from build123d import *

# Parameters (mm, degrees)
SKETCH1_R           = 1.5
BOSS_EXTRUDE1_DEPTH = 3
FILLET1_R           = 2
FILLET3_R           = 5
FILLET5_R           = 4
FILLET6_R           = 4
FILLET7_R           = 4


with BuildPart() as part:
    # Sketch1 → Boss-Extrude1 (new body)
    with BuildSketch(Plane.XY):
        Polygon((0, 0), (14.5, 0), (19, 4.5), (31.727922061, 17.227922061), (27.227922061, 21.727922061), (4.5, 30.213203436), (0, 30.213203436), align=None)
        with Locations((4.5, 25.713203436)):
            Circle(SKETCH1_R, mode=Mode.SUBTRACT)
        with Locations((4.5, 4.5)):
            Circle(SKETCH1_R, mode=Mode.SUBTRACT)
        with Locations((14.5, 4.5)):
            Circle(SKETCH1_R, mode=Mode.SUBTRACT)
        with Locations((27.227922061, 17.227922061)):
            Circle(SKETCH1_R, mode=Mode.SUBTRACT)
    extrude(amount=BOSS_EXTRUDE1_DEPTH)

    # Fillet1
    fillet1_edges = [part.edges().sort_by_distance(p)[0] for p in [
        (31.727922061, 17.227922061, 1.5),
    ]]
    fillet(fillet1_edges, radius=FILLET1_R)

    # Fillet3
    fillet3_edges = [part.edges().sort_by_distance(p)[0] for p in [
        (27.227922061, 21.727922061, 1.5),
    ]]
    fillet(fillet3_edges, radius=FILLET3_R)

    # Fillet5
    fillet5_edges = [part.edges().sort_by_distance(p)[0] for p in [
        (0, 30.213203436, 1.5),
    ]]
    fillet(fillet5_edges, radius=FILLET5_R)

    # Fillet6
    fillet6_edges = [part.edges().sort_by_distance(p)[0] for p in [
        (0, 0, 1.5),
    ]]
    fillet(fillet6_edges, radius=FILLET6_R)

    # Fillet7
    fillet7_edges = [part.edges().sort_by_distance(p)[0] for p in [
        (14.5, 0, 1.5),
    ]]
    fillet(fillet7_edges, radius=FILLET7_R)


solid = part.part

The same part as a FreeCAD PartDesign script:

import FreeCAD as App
import Part
import Sketcher
Q = App.Units.Quantity


def edges_at(feature, points):
    """Names of the edges that pass closest to the given points."""
    edges = feature.Shape.Edges
    near = lambda p: min(range(len(edges)), key=lambda i: edges[i].distToShape(Part.Vertex(*p))[0])
    return sorted({f"Edge{near(p) + 1}" for p in points})


def add_polygon(sketch, points):
    """Adds a closed chain of lines whose ends are joined by coincident constraints."""
    first, n = sketch.GeometryCount, len(points)
    for a, b in zip(points, points[1:] + points[:1]):
        sketch.addGeometry(Part.LineSegment(App.Vector(*a, 0), App.Vector(*b, 0)), False)
    for i in range(n):
        sketch.addConstraint(Sketcher.Constraint("Coincident", first + i, 2, first + (i + 1) % n, 1))

doc = App.newDocument("Part")
body = doc.addObject("PartDesign::Body", "Body")

# Sketch on XY plane
sketch1 = body.newObject("Sketcher::SketchObject", "Sketch")
sketch1.AttachmentSupport = (doc.getObject("XY_Plane"), [""])
sketch1.MapMode = "FlatFace"
add_polygon(sketch1, [(0, 0), (14.5, 0), (31.727922, 17.227922), (27.227922, 21.727922), (4.5, 30.213203), (0, 30.213203)])  # lines 0-5
sketch1.addGeometry(Part.Circle(App.Vector(4.5, 4.5, 0), App.Vector(0, 0, 1), 1.5), False)  # 6
sketch1.addGeometry(Part.Circle(App.Vector(14.5, 4.5, 0), App.Vector(0, 0, 1), 1.5), False)  # 7
sketch1.addGeometry(Part.Circle(App.Vector(4.5, 25.713203, 0), App.Vector(0, 0, 1), 1.5), False)  # 8
sketch1.addGeometry(Part.Circle(App.Vector(27.227922, 17.227922, 0), App.Vector(0, 0, 1), 1.5), False)  # 9
sketch1.addConstraint([
    Sketcher.Constraint("Horizontal", 0),
    Sketcher.Constraint("Horizontal", 4),
    Sketcher.Constraint("Vertical", 5),
    Sketcher.Constraint("Coincident", 5, 2, -1, 1),
    Sketcher.Constraint("Equal", 6, 7),
    Sketcher.Constraint("Equal", 7, 8),
    Sketcher.Constraint("Equal", 8, 9),
    Sketcher.Constraint("Perpendicular", 1, 2),
    Sketcher.Constraint("Horizontal", 6, 3, 7, 3),
    Sketcher.Constraint("Horizontal", 9, 3, 1, 2),
    Sketcher.Constraint("Vertical", 6, 3, 8, 3),
    Sketcher.Constraint("Vertical", 7, 3, 0, 2),
    Sketcher.Constraint("Vertical", 9, 3, 2, 2),
    Sketcher.Constraint("Vertical", 8, 3, 3, 2),
    Sketcher.Constraint("Diameter", 6, 3.0),
    Sketcher.Constraint("Angle", 1, Q("45 deg")),
    Sketcher.Constraint("DistanceX", 0, 1, 0, 2, 14.5),
    Sketcher.Constraint("DistanceX", 4, 2, 4, 1, 4.5),
    Sketcher.Constraint("DistanceY", -1, 1, 6, 3, 4.5),
    Sketcher.Constraint("DistanceX", 9, 3, 1, 2, 4.5),
    Sketcher.Constraint("DistanceY", 8, 3, 3, 2, 4.5),
    Sketcher.Constraint("Distance", 1, 24.363961),
    Sketcher.Constraint("DistanceY", 5, 2, 5, 1, 30.213203),
])
pad1 = body.newObject("PartDesign::Pad", "Pad")
pad1.Profile = sketch1
pad1.Length = 3
doc.recompute()

fillet = body.newObject("PartDesign::Fillet", "Fillet")
fillet.Base = (pad1, edges_at(pad1, [(31.728, 17.228, 1.5)]))
fillet.Radius = 2
doc.recompute()

fillet2 = body.newObject("PartDesign::Fillet", "Fillet001")
fillet2.Base = (fillet, edges_at(fillet, [(27.228, 21.728, 1.5)]))
fillet2.Radius = 5
doc.recompute()

fillet3 = body.newObject("PartDesign::Fillet", "Fillet002")
fillet3.Base = (fillet2, edges_at(fillet2, [(0, 30.213, 1.5)]))
fillet3.Radius = 4
doc.recompute()

fillet4 = body.newObject("PartDesign::Fillet", "Fillet003")
fillet4.Base = (fillet3, edges_at(fillet3, [(0, 0, 1.5)]))
fillet4.Radius = 4
doc.recompute()

fillet5 = body.newObject("PartDesign::Fillet", "Fillet004")
fillet5.Base = (fillet4, edges_at(fillet4, [(14.5, 0, 1.5)]))
fillet5.Radius = 4

doc.recompute()
